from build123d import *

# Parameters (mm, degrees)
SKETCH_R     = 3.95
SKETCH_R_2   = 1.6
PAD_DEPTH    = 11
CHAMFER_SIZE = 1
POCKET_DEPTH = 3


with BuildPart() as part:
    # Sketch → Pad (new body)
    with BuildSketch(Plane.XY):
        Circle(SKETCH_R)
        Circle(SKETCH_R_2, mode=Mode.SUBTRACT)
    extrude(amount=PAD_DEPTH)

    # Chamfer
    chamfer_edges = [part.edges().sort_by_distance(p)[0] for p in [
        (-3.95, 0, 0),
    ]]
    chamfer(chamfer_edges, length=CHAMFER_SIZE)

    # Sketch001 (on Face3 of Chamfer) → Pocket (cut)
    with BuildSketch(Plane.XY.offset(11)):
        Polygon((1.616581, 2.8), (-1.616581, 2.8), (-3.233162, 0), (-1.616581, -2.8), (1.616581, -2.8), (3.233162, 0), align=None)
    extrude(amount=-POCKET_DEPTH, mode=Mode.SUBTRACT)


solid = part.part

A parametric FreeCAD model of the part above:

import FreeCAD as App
import Part
import Sketcher
Q = App.Units.Quantity


def edges_at(feature, points):
    """Names of the edges that pass closest to the given points."""
    edges = feature.Shape.Edges
    near = lambda p: min(range(len(edges)), key=lambda i: edges[i].distToShape(Part.Vertex(*p))[0])
    return sorted({f"Edge{near(p) + 1}" for p in points})


def add_polygon(sketch, points):
    """Adds a closed chain of lines whose ends are joined by coincident constraints."""
    first, n = sketch.GeometryCount, len(points)
    for a, b in zip(points, points[1:] + points[:1]):
        sketch.addGeometry(Part.LineSegment(App.Vector(*a, 0), App.Vector(*b, 0)), False)
    for i in range(n):
        sketch.addConstraint(Sketcher.Constraint("Coincident", first + i, 2, first + (i + 1) % n, 1))

doc = App.newDocument("Part")
body = doc.addObject("PartDesign::Body", "Body")

sketch1 = doc.addObject("Sketcher::SketchObject", "Sketch")
body.addObject(sketch1)
sketch1.AttachmentSupport = (doc.XY_Plane, [""])
sketch1.MapMode = "FlatFace"
sketch1.addGeometry([
    Part.Circle(App.Vector(0, 0, 0), App.Vector(0, 0, 1), 4),
    Part.Circle(App.Vector(0, 0, 0), App.Vector(0, 0, 1), 1.6),
], False)
sketch1.addConstraint([
    Sketcher.Constraint("Coincident", 0, 3, -1, 1),
    Sketcher.Constraint("Coincident", 1, 3, -1, 1),
    Sketcher.Constraint("Diameter", 0, 7.9),
    Sketcher.Constraint("Diameter", 1, 3.2),
])
pad1 = doc.addObject("PartDesign::Pad", "Pad")
body.addObject(pad1)
pad1.Profile = sketch1
pad1.Length = 11
doc.recompute()

chamfer = doc.addObject("PartDesign::Chamfer", "Chamfer")
body.addObject(chamfer)
chamfer.Base = (pad1, edges_at(pad1, [(-3.95, 0, 0)]))
chamfer.Size = 1

sketch2 = doc.addObject("Sketcher::SketchObject", "Sketch001")
body.addObject(sketch2)
sketch2.AttachmentSupport = (doc.XY_Plane, [""])
sketch2.MapMode = "FlatFace"
sketch2.AttachmentOffset = App.Placement(App.Vector(0, 0, 11), App.Rotation())
add_polygon(sketch2, [(1.6, 2.8), (-1.6, 2.8), (-3.2, 0), (-1.6, -2.8), (1.6, -2.8), (3.2, 0)])
sketch2.addConstraint([
    Sketcher.Constraint("Horizontal", 0),
    Sketcher.Constraint("Horizontal", 3),
    Sketcher.Constraint("Symmetric", 0, 2, 3, 2, -1, 1),
    Sketcher.Constraint("Symmetric", 1, 2, 4, 2, -1, 1),
    Sketcher.Constraint("PointOnObject", 1, 2, -1),
    Sketcher.Constraint("Parallel", 2, 5),
    Sketcher.Constraint("Vertical", 0, 2, 2, 2),
    Sketcher.Constraint("Angle", 1, Q("-120.000004 deg")),
    Sketcher.Constraint("DistanceY", -1, 1, 0, 2, 2.8),
    Sketcher.Constraint("DistanceX", 0, 2, 0, 1, 3.233162),
])
pocket1 = doc.addObject("PartDesign::Pocket", "Pocket")
body.addObject(pocket1)
pocket1.Profile = sketch2
pocket1.Length = 3

doc.recompute()
